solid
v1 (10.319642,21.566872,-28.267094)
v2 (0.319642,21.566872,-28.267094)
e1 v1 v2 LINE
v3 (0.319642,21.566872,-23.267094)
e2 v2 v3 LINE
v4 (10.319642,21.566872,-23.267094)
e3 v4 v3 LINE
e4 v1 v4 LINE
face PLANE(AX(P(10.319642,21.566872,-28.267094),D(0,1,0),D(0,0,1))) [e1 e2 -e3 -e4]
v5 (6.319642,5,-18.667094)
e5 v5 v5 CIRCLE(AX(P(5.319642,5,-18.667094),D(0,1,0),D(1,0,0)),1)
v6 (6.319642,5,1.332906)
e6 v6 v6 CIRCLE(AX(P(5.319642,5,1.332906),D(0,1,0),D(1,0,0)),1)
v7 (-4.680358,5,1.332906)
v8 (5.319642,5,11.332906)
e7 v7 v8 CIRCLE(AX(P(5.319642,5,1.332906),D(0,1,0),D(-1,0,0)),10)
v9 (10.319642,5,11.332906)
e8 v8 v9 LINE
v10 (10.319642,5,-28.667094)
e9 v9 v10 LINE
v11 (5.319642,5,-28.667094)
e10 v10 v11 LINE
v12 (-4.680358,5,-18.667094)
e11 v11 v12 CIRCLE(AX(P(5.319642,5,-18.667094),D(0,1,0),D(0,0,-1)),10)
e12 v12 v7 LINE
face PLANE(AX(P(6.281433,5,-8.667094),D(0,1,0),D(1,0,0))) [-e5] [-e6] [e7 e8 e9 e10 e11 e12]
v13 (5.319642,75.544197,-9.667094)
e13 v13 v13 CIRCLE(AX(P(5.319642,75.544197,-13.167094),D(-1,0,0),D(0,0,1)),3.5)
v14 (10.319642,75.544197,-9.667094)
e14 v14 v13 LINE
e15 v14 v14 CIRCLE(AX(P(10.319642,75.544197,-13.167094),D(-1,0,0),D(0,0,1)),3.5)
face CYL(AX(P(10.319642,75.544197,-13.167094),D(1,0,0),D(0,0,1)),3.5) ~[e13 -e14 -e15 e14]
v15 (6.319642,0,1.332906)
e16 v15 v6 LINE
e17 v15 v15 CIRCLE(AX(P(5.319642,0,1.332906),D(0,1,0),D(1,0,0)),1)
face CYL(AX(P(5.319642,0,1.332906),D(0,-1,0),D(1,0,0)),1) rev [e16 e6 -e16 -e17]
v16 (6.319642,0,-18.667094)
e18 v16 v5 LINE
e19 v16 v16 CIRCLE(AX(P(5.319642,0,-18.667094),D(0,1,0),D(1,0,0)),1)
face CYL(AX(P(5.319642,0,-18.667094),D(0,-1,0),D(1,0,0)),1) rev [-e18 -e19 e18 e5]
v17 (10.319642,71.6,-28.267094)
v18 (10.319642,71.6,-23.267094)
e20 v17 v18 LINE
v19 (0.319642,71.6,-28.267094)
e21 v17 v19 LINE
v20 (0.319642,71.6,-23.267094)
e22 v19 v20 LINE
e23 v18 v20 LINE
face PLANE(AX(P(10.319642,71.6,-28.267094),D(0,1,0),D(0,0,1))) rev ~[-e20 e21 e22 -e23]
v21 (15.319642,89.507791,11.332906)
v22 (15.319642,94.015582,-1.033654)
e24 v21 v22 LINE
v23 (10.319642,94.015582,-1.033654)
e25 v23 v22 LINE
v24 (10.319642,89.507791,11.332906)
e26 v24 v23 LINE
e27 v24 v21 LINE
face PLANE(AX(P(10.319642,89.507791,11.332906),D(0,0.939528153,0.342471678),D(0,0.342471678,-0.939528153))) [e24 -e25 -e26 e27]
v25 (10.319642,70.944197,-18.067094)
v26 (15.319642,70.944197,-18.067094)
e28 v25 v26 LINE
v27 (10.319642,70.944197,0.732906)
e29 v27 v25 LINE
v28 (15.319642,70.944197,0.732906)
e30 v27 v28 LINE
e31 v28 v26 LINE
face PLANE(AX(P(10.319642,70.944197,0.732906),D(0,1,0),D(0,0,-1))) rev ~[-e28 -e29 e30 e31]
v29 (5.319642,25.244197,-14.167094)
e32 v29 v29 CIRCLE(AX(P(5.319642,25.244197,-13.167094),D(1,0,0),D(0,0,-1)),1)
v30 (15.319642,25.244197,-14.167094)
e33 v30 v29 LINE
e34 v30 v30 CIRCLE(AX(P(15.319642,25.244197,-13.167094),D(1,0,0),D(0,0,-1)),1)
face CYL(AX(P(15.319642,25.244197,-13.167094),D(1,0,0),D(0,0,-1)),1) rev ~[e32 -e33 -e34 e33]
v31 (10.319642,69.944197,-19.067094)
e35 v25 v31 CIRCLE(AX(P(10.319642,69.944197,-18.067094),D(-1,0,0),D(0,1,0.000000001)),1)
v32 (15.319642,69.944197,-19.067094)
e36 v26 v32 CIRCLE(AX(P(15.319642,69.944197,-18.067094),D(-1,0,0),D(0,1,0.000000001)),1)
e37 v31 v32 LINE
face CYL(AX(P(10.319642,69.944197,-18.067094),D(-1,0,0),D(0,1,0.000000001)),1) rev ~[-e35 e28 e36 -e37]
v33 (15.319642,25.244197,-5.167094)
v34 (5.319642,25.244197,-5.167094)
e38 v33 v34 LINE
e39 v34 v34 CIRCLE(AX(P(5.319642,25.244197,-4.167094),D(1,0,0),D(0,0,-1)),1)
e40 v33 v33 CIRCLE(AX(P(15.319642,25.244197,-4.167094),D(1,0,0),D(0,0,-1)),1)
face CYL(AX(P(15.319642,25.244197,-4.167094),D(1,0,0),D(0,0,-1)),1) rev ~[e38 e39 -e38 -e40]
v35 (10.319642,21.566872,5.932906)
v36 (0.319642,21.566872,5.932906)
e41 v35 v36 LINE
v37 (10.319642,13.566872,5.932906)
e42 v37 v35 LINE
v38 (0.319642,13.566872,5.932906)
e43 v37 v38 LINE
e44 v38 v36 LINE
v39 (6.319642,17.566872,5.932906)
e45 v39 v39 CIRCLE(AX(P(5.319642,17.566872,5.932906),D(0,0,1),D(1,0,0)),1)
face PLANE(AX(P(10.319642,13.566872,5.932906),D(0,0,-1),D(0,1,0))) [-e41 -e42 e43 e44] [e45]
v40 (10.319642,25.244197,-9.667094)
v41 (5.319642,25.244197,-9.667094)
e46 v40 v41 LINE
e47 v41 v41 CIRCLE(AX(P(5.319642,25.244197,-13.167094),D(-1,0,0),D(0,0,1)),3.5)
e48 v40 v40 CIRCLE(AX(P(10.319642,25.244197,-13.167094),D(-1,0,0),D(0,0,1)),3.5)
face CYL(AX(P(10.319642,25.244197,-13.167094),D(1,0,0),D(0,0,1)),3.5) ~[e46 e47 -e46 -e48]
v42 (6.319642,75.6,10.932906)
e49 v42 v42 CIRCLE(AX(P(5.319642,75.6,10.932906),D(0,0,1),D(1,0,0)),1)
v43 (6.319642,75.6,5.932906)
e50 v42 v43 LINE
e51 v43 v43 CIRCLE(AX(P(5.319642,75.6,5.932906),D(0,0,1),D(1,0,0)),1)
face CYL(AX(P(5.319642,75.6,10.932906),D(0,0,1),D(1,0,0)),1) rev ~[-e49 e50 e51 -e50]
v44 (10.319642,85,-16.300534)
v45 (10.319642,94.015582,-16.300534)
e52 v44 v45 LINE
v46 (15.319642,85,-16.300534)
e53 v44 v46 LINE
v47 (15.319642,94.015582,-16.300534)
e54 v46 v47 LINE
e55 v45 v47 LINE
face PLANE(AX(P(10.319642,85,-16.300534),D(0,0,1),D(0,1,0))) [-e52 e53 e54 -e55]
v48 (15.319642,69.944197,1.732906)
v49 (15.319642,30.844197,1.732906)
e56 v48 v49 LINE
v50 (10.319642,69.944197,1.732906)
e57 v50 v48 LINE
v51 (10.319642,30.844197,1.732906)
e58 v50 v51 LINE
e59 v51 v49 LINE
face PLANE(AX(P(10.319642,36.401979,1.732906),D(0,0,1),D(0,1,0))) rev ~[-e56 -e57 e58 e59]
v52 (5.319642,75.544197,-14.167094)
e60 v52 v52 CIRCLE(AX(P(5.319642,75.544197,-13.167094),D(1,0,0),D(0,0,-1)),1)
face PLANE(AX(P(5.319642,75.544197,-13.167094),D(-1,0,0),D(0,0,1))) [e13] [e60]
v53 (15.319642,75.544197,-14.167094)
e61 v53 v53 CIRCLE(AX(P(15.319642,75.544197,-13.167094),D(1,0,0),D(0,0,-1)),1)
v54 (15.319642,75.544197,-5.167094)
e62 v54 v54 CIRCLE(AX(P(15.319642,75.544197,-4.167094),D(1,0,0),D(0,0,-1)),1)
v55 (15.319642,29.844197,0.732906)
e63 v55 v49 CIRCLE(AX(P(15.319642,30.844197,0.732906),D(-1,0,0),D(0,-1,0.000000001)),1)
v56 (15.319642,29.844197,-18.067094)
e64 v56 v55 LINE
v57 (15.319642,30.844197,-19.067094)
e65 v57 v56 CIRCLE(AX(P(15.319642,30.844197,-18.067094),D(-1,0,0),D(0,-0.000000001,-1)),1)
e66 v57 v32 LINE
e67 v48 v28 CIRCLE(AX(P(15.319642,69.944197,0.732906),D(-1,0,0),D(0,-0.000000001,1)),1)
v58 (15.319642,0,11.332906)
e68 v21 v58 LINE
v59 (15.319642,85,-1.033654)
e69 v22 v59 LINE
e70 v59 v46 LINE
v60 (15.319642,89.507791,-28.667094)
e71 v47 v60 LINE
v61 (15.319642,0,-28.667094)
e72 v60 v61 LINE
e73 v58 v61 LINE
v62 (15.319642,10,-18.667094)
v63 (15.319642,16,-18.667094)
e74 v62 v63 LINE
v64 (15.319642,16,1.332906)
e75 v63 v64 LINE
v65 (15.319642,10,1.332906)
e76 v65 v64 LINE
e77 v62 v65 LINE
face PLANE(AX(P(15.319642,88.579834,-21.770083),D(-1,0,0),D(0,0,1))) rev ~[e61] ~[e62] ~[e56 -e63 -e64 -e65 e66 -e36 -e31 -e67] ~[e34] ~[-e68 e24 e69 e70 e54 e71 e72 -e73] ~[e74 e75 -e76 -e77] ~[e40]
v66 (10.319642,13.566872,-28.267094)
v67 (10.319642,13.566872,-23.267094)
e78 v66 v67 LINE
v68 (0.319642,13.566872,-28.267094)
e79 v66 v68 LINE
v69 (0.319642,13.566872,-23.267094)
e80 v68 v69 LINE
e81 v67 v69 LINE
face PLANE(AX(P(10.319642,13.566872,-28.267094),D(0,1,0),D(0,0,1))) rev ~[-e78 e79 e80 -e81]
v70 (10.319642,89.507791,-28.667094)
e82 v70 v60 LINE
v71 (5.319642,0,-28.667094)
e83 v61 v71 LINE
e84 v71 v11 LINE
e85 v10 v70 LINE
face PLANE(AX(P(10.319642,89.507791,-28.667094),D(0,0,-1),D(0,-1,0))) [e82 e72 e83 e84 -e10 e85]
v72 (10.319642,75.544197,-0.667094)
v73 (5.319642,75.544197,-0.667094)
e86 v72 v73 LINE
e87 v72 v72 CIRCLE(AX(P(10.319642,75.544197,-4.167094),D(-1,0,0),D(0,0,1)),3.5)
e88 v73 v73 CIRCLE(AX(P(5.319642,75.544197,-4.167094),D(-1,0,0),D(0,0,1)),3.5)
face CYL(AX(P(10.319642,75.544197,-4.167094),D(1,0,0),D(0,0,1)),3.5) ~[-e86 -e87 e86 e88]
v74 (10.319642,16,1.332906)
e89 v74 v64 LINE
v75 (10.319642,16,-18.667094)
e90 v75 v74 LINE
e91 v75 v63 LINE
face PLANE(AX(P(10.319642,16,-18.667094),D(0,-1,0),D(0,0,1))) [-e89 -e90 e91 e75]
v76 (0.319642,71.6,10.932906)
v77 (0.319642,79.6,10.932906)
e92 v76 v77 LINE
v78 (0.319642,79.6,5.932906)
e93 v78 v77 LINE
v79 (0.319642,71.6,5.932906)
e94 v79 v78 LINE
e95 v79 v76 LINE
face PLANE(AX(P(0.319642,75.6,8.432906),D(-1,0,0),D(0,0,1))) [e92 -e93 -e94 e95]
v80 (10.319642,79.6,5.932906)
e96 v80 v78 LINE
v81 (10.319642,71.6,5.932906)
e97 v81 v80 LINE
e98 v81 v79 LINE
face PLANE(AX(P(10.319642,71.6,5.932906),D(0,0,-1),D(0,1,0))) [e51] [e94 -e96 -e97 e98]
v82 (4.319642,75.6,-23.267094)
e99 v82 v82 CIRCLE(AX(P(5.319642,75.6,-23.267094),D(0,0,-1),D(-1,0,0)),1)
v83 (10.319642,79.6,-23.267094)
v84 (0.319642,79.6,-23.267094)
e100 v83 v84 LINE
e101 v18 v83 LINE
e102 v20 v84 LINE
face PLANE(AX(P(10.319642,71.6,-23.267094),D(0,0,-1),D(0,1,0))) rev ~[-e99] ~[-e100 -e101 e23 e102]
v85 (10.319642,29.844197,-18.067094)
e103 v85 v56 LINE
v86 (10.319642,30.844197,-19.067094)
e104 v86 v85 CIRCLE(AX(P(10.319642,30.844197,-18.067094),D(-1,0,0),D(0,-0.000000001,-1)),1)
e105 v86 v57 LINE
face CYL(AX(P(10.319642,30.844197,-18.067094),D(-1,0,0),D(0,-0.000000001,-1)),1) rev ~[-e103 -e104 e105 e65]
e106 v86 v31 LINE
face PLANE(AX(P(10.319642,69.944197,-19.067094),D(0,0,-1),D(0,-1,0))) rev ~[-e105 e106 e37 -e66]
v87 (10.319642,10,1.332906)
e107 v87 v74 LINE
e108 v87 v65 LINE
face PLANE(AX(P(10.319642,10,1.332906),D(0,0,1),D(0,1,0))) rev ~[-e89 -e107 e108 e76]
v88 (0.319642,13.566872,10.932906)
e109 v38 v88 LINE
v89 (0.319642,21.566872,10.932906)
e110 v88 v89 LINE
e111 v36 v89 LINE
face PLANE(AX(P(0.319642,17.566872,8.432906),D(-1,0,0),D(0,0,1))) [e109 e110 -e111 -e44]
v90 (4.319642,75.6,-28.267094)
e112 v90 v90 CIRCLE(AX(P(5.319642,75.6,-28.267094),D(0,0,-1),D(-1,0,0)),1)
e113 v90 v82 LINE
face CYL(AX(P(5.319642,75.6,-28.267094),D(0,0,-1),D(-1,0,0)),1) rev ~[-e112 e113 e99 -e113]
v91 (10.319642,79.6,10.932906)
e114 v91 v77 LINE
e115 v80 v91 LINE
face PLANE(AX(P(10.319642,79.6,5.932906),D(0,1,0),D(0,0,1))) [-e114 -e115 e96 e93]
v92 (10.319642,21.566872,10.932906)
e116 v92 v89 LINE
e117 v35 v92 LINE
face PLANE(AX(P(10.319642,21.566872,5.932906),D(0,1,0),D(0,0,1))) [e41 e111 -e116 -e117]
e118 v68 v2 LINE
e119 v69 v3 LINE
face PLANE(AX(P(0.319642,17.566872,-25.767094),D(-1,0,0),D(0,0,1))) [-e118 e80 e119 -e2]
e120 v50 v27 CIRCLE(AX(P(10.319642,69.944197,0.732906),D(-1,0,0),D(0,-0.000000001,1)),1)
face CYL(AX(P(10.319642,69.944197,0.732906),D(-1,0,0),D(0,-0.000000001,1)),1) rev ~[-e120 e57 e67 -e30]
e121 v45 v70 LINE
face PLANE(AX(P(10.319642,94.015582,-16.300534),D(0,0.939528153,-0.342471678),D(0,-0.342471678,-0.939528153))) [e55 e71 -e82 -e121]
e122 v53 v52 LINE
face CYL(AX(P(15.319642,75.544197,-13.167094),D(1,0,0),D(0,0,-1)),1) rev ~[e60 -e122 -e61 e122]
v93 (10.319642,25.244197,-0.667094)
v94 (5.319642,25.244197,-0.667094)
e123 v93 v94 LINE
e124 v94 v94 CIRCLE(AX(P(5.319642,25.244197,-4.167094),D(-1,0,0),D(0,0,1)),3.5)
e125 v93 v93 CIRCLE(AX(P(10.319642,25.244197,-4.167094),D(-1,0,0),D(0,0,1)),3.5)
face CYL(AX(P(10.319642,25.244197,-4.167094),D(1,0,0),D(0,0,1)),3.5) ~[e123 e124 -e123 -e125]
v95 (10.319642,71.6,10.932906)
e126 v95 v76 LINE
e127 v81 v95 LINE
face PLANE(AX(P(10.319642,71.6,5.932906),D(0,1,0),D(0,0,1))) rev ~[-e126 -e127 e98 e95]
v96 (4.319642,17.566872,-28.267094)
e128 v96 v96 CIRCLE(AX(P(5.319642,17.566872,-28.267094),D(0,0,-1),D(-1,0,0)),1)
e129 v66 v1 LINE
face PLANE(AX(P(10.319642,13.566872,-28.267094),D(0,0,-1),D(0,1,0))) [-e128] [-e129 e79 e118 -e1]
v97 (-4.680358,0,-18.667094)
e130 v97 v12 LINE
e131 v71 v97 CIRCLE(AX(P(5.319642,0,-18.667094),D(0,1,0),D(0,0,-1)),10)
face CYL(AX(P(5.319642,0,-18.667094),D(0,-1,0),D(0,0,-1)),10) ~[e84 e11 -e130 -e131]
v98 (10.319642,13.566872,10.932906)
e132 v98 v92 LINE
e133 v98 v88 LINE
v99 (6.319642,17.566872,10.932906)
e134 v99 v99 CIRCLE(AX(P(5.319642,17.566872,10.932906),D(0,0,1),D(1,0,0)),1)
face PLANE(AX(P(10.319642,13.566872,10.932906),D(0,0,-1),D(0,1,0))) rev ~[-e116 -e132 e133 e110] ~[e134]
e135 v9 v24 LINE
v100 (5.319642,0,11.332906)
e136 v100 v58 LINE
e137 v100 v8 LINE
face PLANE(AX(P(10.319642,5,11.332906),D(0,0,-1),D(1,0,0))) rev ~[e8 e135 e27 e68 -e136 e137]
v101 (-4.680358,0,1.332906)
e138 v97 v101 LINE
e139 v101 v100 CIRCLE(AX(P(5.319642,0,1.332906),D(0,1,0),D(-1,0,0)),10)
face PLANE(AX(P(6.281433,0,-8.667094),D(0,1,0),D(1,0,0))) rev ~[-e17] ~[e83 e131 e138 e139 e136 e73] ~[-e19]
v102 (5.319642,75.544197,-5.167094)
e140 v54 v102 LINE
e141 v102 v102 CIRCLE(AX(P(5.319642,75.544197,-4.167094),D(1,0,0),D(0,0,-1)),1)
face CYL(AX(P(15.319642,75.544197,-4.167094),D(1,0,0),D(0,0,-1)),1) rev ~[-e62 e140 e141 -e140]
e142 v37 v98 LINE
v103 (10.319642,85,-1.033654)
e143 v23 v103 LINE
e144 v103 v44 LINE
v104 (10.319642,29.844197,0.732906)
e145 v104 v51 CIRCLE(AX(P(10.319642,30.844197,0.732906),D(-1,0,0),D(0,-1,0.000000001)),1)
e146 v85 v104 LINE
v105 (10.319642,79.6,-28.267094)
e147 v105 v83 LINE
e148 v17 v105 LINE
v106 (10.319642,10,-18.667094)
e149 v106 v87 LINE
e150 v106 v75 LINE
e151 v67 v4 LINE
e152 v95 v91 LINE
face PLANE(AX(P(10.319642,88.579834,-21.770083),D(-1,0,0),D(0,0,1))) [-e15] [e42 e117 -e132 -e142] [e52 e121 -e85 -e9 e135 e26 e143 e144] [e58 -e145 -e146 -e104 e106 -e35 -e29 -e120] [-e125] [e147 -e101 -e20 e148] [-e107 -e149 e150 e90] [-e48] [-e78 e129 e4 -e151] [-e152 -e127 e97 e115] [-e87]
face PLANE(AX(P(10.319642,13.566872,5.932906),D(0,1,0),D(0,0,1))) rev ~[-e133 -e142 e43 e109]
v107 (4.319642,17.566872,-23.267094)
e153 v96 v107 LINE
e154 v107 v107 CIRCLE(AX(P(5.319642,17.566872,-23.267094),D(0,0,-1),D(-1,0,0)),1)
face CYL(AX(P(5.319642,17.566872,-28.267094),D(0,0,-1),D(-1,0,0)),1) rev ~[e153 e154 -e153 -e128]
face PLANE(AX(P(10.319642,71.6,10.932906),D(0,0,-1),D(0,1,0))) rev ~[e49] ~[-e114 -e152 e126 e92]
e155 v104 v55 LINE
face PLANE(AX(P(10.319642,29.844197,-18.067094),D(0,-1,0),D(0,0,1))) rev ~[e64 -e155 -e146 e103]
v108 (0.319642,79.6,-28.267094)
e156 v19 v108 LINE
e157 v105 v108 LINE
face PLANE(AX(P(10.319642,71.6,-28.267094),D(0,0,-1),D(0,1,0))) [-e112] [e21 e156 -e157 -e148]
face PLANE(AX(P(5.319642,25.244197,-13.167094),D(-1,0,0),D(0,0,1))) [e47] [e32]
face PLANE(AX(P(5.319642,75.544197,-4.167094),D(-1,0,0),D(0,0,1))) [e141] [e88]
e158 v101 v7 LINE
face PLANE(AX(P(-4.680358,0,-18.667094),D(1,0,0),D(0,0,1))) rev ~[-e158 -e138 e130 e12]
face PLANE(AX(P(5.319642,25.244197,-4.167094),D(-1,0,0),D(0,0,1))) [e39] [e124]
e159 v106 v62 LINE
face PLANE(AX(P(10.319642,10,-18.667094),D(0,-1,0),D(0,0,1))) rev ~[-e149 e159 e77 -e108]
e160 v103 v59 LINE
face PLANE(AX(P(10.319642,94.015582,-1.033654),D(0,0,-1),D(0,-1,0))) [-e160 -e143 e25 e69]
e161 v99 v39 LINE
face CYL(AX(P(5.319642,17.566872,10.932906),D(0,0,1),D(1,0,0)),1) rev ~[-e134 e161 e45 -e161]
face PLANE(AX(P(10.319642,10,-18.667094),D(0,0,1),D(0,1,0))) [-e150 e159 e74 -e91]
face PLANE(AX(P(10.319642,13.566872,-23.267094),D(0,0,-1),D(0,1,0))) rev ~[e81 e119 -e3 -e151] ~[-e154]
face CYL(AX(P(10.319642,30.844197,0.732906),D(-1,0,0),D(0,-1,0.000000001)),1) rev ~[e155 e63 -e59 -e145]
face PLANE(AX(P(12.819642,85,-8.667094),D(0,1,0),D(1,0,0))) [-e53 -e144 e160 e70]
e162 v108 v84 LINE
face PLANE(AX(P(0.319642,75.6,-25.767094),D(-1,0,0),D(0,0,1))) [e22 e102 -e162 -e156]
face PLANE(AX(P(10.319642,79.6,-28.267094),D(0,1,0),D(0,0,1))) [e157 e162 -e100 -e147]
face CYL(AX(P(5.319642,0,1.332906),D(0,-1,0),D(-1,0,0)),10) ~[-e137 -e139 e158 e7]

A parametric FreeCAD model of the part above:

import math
import FreeCAD as App
import Part
import Sketcher

doc = App.newDocument("Part")
params = doc.addObject("Spreadsheet::Sheet", "Params")
for row, (alias, value) in enumerate([
    ("sketch1_diameter", "2 mm"),
    ("sketch1_radius", "10 mm"),
    ("sketch1_width", "10 mm"),
    ("sketch1_height", "40 mm"),
    ("pad1_length", "5 mm"),
    ("sketch2_width", "5 mm"),
    ("sketch2_height", "40 mm"),
    ("pad2_length", "80 mm"),
    ("sketch3_radius", "1 mm"),
    ("sketch3_diameter", "4.44 mm"),
    ("sketch3_height", "18.8 mm"),
    ("pocket1_length", "80 mm"),
    ("sketch4_diameter", "2 mm"),
    ("sketch4_diameter2", "4.44 mm"),
    ("pad3_length", "10 mm"),
    ("sketch5_diameter", "7 mm"),
    ("sketch5_diameter2", "4.44 mm"),
    ("pad4_length", "5 mm"),
    ("sketch6_radius", "1 mm"),
    ("sketch6_height", "18.8 mm"),
    ("pocket2_length", "10 mm"),
    ("pad5_length", "5 mm"),
    ("sketch8_width", "6 mm"),
    ("sketch8_height", "20 mm"),
    ("pocket3_length", "10 mm"),
    ("sketch9_width", "8 mm"),
    ("sketch9_height", "5 mm"),
    ("pad6_length", "10 mm"),
    ("sketch10_diameter", "2 mm"),
    ("pocket4_length", "8 mm"),
    ("sketch11_diameter", "2 mm"),
    ("pocket5_length", "8 mm"),
], start=1):
    params.set(f"A{row}", alias)
    params.set(f"B{row}", "=" + value)
    params.setAlias(f"B{row}", alias)

body = doc.addObject("PartDesign::Body", "Body")

sketch1 = body.newObject("Sketcher::SketchObject", "Sketch")
sketch1.AttachmentSupport = (doc.getObject("XZ_Plane"), [""])
sketch1.MapMode = "FlatFace"
sketch1.addGeometry([
    Part.LineSegment(App.Vector(5.3, 11.3, 0), App.Vector(15.3, 11.3, 0)),
    Part.LineSegment(App.Vector(15.3, 11.3, 0), App.Vector(15.3, -28.7, 0)),
    Part.LineSegment(App.Vector(15.3, -28.7, 0), App.Vector(5.3, -28.7, 0)),
    Part.ArcOfCircle(Part.Circle(App.Vector(5.3, -18.7, 0), App.Vector(0, 0, 1), 10), math.radians(180), math.radians(270)),
    Part.LineSegment(App.Vector(-4.7, -18.7, 0), App.Vector(-4.7, 1.3, 0)),
    Part.ArcOfCircle(Part.Circle(App.Vector(5.3, 1.3, 0), App.Vector(0, 0, 1), 10), math.radians(90), math.radians(180)),
    Part.Circle(App.Vector(5.3, 1.3, 0), App.Vector(0, 0, 1), 1),
    Part.Circle(App.Vector(5.3, -18.7, 0), App.Vector(0, 0, 1), 1),
], False)
sketch1.addConstraint([
    Sketcher.Constraint("Coincident", 0, 2, 1, 1),
    Sketcher.Constraint("Coincident", 1, 2, 2, 1),
    Sketcher.Constraint("Tangent", 2, 2, 3, 2),
    Sketcher.Constraint("Tangent", 3, 1, 4, 1),
    Sketcher.Constraint("Tangent", 4, 2, 5, 2),
    Sketcher.Constraint("Tangent", 5, 1, 0, 1),
    Sketcher.Constraint("Horizontal", 0),
    Sketcher.Constraint("Vertical", 1),
    Sketcher.Constraint("Horizontal", 2),
    Sketcher.Constraint("Vertical", 4),
    Sketcher.Constraint("Coincident", 6, 3, 5, 3),
    Sketcher.Constraint("Coincident", 7, 3, 3, 3),
    Sketcher.Constraint("Equal", 3, 5),
    Sketcher.Constraint("Equal", 6, 7),
    Sketcher.Constraint("Diameter", 6, 2.0),
    Sketcher.Constraint("Radius", 3, 10.0),
    Sketcher.Constraint("DistanceX", 0, 1, 0, 2, 10.0),
    Sketcher.Constraint("DistanceY", 1, 2, 1, 1, 40.0),
    Sketcher.Constraint("DistanceX", -1, 1, 3, 3, 5.319642),
    Sketcher.Constraint("DistanceY", 3, 3, -1, 1, 18.667094),
])
sketch1.setExpression("Constraints[14]", "Params.sketch1_diameter")
sketch1.setExpression("Constraints[15]", "Params.sketch1_radius")
sketch1.setExpression("Constraints[16]", "Params.sketch1_width")
sketch1.setExpression("Constraints[17]", "Params.sketch1_height")
pad1 = body.newObject("PartDesign::Pad", "Pad")
pad1.Profile = sketch1
pad1.setExpression("Length", "Params.pad1_length")
pad1.Reversed = True

sketch2 = body.newObject("Sketcher::SketchObject", "Sketch001")
sketch2.AttachmentSupport = (doc.getObject("XZ_Plane"), [""])
sketch2.MapMode = "FlatFace"
sketch2.AttachmentOffset = App.Placement(App.Vector(0, 0, -5), App.Rotation())
sketch2.addGeometry([
    Part.LineSegment(App.Vector(10, -29, 0), App.Vector(10, 11, 0)),
    Part.LineSegment(App.Vector(10, 11, 0), App.Vector(15, 11, 0)),
    Part.LineSegment(App.Vector(15, 11, 0), App.Vector(15, -29, 0)),
    Part.LineSegment(App.Vector(15, -29, 0), App.Vector(10, -29, 0)),
], False)
sketch2.addConstraint([
    Sketcher.Constraint("Coincident", 0, 2, 1, 1),
    Sketcher.Constraint("Coincident", 1, 2, 2, 1),
    Sketcher.Constraint("Coincident", 2, 2, 3, 1),
    Sketcher.Constraint("Coincident", 3, 2, 0, 1),
    Sketcher.Constraint("Vertical", 0),
    Sketcher.Constraint("Horizontal", 1),
    Sketcher.Constraint("Vertical", 2),
    Sketcher.Constraint("Horizontal", 3),
    Sketcher.Constraint("DistanceX", 1, 1, 1, 2, 5.0),
    Sketcher.Constraint("DistanceY", 0, 1, 0, 2, 40.0),
    Sketcher.Constraint("DistanceX", -1, 1, 0, 2, 10.319642),
    Sketcher.Constraint("DistanceY", -1, 1, 0, 2, 11.332906),
])
sketch2.setExpression("Constraints[8]", "Params.sketch2_width")
sketch2.setExpression("Constraints[9]", "Params.sketch2_height")
pad2 = body.newObject("PartDesign::Pad", "Pad001")
pad2.Profile = sketch2
pad2.setExpression("Length", "Params.pad2_length")
pad2.Reversed = True

sketch3 = body.newObject("Sketcher::SketchObject", "Sketch002")
sketch3.AttachmentSupport = (doc.getObject("YZ_Plane"), [""])
sketch3.MapMode = "FlatFace"
sketch3.AttachmentOffset = App.Placement(App.Vector(0, 0, 10.319642), App.Rotation())
sketch3.addGeometry([
    Part.ArcOfCircle(Part.Circle(App.Vector(36.4, 0.7, 0), App.Vector(0, 0, 1), 1), math.radians(90), math.radians(180)),
    Part.LineSegment(App.Vector(36.4, 1.7, 0), App.Vector(69.9, 1.7, 0)),
    Part.ArcOfCircle(Part.Circle(App.Vector(69.9, 0.7, 0), App.Vector(0, 0, 1), 1), math.radians(0), math.radians(90)),
    Part.LineSegment(App.Vector(70.9, 0.7, 0), App.Vector(70.9, -18.1, 0)),
    Part.ArcOfCircle(Part.Circle(App.Vector(69.9, -18.1, 0), App.Vector(0, 0, 1), 1), math.radians(-90), math.radians(0)),
    Part.LineSegment(App.Vector(69.9, -19.1, 0), App.Vector(36.4, -19.1, 0)),
    Part.ArcOfCircle(Part.Circle(App.Vector(36.4, -18.1, 0), App.Vector(0, 0, 1), 1), math.radians(-180), math.radians(-90)),
    Part.LineSegment(App.Vector(35.4, -18.1, 0), App.Vector(35.4, 0.7, 0)),
    Part.Circle(App.Vector(75.5, -13.2, 0), App.Vector(0, 0, 1), 2.2),
    Part.Circle(App.Vector(25.2, -13.2, 0), App.Vector(0, 0, 1), 2.2),
    Part.Circle(App.Vector(25.2, -4.2, 0), App.Vector(0, 0, 1), 2.2),
    Part.Circle(App.Vector(75.5, -4.2, 0), App.Vector(0, 0, 1), 2.2),
], False)
sketch3.addConstraint([
    Sketcher.Constraint("Tangent", 0, 1, 1, 1),
    Sketcher.Constraint("Tangent", 1, 2, 2, 2),
    Sketcher.Constraint("Tangent", 2, 1, 3, 1),
    Sketcher.Constraint("Tangent", 3, 2, 4, 2),
    Sketcher.Constraint("Tangent", 4, 1, 5, 1),
    Sketcher.Constraint("Tangent", 5, 2, 6, 2),
    Sketcher.Constraint("Tangent", 6, 1, 7, 1),
    Sketcher.Constraint("Tangent", 7, 2, 0, 2),
    Sketcher.Constraint("Horizontal", 1),
    Sketcher.Constraint("Vertical", 3),
    Sketcher.Constraint("Horizontal", 5),
    Sketcher.Constraint("Vertical", 7),
    Sketcher.Constraint("Equal", 0, 2),
    Sketcher.Constraint("Equal", 2, 4),
    Sketcher.Constraint("Equal", 4, 6),
    Sketcher.Constraint("Equal", 8, 9),
    Sketcher.Constraint("Equal", 9, 10),
    Sketcher.Constraint("Equal", 10, 11),
    Sketcher.Constraint("Horizontal", 8, 3, 9, 3),
    Sketcher.Constraint("Horizontal", 10, 3, 11, 3),
    Sketcher.Constraint("Vertical", 9, 3, 10, 3),
    Sketcher.Constraint("Vertical", 8, 3, 11, 3),
    Sketcher.Constraint("Radius", 0, 1.0),
    Sketcher.Constraint("Diameter", 8, 4.44),
    Sketcher.Constraint("DistanceY", 3, 2, 3, 1, 18.8),
    Sketcher.Constraint("DistanceY", 9, 3, 10, 3, 9.0),
    Sketcher.Constraint("DistanceX", 4, 3, 8, 3, 5.6),
    Sketcher.Constraint("DistanceY", 4, 3, 8, 3, 4.9),
    Sketcher.Constraint("DistanceX", 9, 3, 4, 3, 44.7),
    Sketcher.Constraint("DistanceX", 1, 1, 1, 2, 33.542218),
    Sketcher.Constraint("DistanceX", -1, 1, 0, 3, 36.401979),
    Sketcher.Constraint("DistanceY", -1, 1, 0, 3, 0.732906),
])
sketch3.setExpression("Constraints[22]", "Params.sketch3_radius")
sketch3.setExpression("Constraints[23]", "Params.sketch3_diameter")
sketch3.setExpression("Constraints[24]", "Params.sketch3_height")
pocket1 = body.newObject("PartDesign::Pocket", "Pocket")
pocket1.Profile = sketch3
pocket1.setExpression("Length", "Params.pocket1_length")
pocket1.Reversed = True

sketch4 = body.newObject("Sketcher::SketchObject", "Sketch003")
sketch4.AttachmentSupport = (doc.getObject("YZ_Plane"), [""])
sketch4.MapMode = "FlatFace"
sketch4.AttachmentOffset = App.Placement(App.Vector(0, 0, 15.319642), App.Rotation())
sketch4.addGeometry([
    Part.Circle(App.Vector(25.2, -4.2, 0), App.Vector(0, 0, 1), 2.2),
    Part.Circle(App.Vector(25.2, -4.2, 0), App.Vector(0, 0, 1), 1),
    Part.Circle(App.Vector(25.2, -13.2, 0), App.Vector(0, 0, 1), 2.2),
    Part.Circle(App.Vector(25.2, -13.2, 0), App.Vector(0, 0, 1), 1),
    Part.Circle(App.Vector(75.5, -4.2, 0), App.Vector(0, 0, 1), 2.2),
    Part.Circle(App.Vector(75.5, -4.2, 0), App.Vector(0, 0, 1), 1),
    Part.Circle(App.Vector(75.5, -13.2, 0), App.Vector(0, 0, 1), 2.2),
    Part.Circle(App.Vector(75.5, -13.2, 0), App.Vector(0, 0, 1), 1),
], False)
sketch4.addConstraint([
    Sketcher.Constraint("Coincident", 1, 3, 0, 3),
    Sketcher.Constraint("Coincident", 3, 3, 2, 3),
    Sketcher.Constraint("Coincident", 5, 3, 4, 3),
    Sketcher.Constraint("Coincident", 7, 3, 6, 3),
    Sketcher.Constraint("Equal", 0, 2),
    Sketcher.Constraint("Equal", 1, 3),
    Sketcher.Constraint("Equal", 2, 4),
    Sketcher.Constraint("Equal", 3, 5),
    Sketcher.Constraint("Equal", 4, 6),
    Sketcher.Constraint("Equal", 5, 7),
    Sketcher.Constraint("Horizontal", 1, 3, 4, 3),
    Sketcher.Constraint("Horizontal", 3, 3, 6, 3),
    Sketcher.Constraint("Vertical", 1, 3, 2, 3),
    Sketcher.Constraint("Vertical", 5, 3, 6, 3),
    Sketcher.Constraint("Diameter", 1, 2.0),
    Sketcher.Constraint("Diameter", 0, 4.44),
    Sketcher.Constraint("DistanceY", 2, 3, 0, 3, 9.0),
    Sketcher.Constraint("DistanceX", 0, 3, 4, 3, 50.3),
    Sketcher.Constraint("DistanceX", -1, 1, 0, 3, 25.244197),
    Sketcher.Constraint("DistanceY", 0, 3, -1, 1, 4.167094),
])
sketch4.setExpression("Constraints[14]", "Params.sketch4_diameter")
sketch4.setExpression("Constraints[15]", "Params.sketch4_diameter2")
pad3 = body.newObject("PartDesign::Pad", "Pad002")
pad3.Profile = sketch4
pad3.setExpression("Length", "Params.pad3_length")
pad3.Reversed = True

sketch5 = body.newObject("Sketcher::SketchObject", "Sketch004")
sketch5.AttachmentSupport = (doc.getObject("YZ_Plane"), [""])
sketch5.MapMode = "FlatFace"
sketch5.AttachmentOffset = App.Placement(App.Vector(0, 0, 10.319642), App.Rotation())
sketch5.addGeometry([
    Part.Circle(App.Vector(25.2, -4.2, 0), App.Vector(0, 0, 1), 3.5),
    Part.Circle(App.Vector(25.2, -4.2, 0), App.Vector(0, 0, 1), 2.2),
    Part.Circle(App.Vector(25.2, -13.2, 0), App.Vector(0, 0, 1), 3.5),
    Part.Circle(App.Vector(25.2, -13.2, 0), App.Vector(0, 0, 1), 2.2),
    Part.Circle(App.Vector(75.5, -4.2, 0), App.Vector(0, 0, 1), 3.5),
    Part.Circle(App.Vector(75.5, -4.2, 0), App.Vector(0, 0, 1), 2.2),
    Part.Circle(App.Vector(75.5, -13.2, 0), App.Vector(0, 0, 1), 3.5),
    Part.Circle(App.Vector(75.5, -13.2, 0), App.Vector(0, 0, 1), 2.2),
], False)
sketch5.addConstraint([
    Sketcher.Constraint("Coincident", 1, 3, 0, 3),
    Sketcher.Constraint("Coincident", 3, 3, 2, 3),
    Sketcher.Constraint("Coincident", 5, 3, 4, 3),
    Sketcher.Constraint("Coincident", 7, 3, 6, 3),
    Sketcher.Constraint("Equal", 0, 2),
    Sketcher.Constraint("Equal", 1, 3),
    Sketcher.Constraint("Equal", 2, 4),
    Sketcher.Constraint("Equal", 3, 5),
    Sketcher.Constraint("Equal", 4, 6),
    Sketcher.Constraint("Equal", 5, 7),
    Sketcher.Constraint("Horizontal", 1, 3, 4, 3),
    Sketcher.Constraint("Horizontal", 3, 3, 6, 3),
    Sketcher.Constraint("Vertical", 1, 3, 2, 3),
    Sketcher.Constraint("Vertical", 5, 3, 6, 3),
    Sketcher.Constraint("Diameter", 0, 7.0),
    Sketcher.Constraint("Diameter", 1, 4.44),
    Sketcher.Constraint("DistanceY", 2, 3, 0, 3, 9.0),
    Sketcher.Constraint("DistanceX", 0, 3, 4, 3, 50.3),
    Sketcher.Constraint("DistanceX", -1, 1, 0, 3, 25.244197),
    Sketcher.Constraint("DistanceY", 0, 3, -1, 1, 4.167094),
])
sketch5.setExpression("Constraints[14]", "Params.sketch5_diameter")
sketch5.setExpression("Constraints[15]", "Params.sketch5_diameter2")
pad4 = body.newObject("PartDesign::Pad", "Pad003")
pad4.Profile = sketch5
pad4.setExpression("Length", "Params.pad4_length")
pad4.Reversed = True

sketch6 = body.newObject("Sketcher::SketchObject", "Sketch005")
sketch6.AttachmentSupport = (doc.getObject("YZ_Plane"), [""])
sketch6.MapMode = "FlatFace"
sketch6.AttachmentOffset = App.Placement(App.Vector(0, 0, 10.319642), App.Rotation())
sketch6.addGeometry([
    Part.ArcOfCircle(Part.Circle(App.Vector(36.4, 0.7, 0), App.Vector(0, 0, 1), 1), math.radians(90), math.radians(143)),
    Part.ArcOfCircle(Part.Circle(App.Vector(36.4, 0.7, 0), App.Vector(0, 0, 1), 1), math.radians(143), math.radians(180)),
    Part.LineSegment(App.Vector(35.4, 0.7, 0), App.Vector(35.4, -18.1, 0)),
    Part.ArcOfCircle(Part.Circle(App.Vector(36.4, -18.1, 0), App.Vector(0, 0, 1), 1), math.radians(180), math.radians(217)),
    Part.ArcOfCircle(Part.Circle(App.Vector(36.4, -18.1, 0), App.Vector(0, 0, 1), 1), math.radians(-143), math.radians(-90)),
    Part.LineSegment(App.Vector(36.4, -19.1, 0), App.Vector(30.8, -19.1, 0)),
    Part.ArcOfCircle(Part.Circle(App.Vector(30.8, -18.1, 0), App.Vector(0, 0, 1), 1), math.radians(-180), math.radians(-90)),
    Part.LineSegment(App.Vector(29.8, -18.1, 0), App.Vector(29.8, 0.7, 0)),
    Part.ArcOfCircle(Part.Circle(App.Vector(30.8, 0.7, 0), App.Vector(0, 0, 1), 1), math.radians(90), math.radians(180)),
    Part.LineSegment(App.Vector(30.8, 1.7, 0), App.Vector(36.4, 1.7, 0)),
], False)
sketch6.addConstraint([
    Sketcher.Constraint("Tangent", 0, 2, 1, 1),
    Sketcher.Constraint("Tangent", 1, 2, 2, 1),
    Sketcher.Constraint("Tangent", 2, 2, 3, 1),
    Sketcher.Constraint("Tangent", 3, 2, 4, 1),
    Sketcher.Constraint("Tangent", 4, 2, 5, 1),
    Sketcher.Constraint("Tangent", 5, 2, 6, 2),
    Sketcher.Constraint("Tangent", 6, 1, 7, 1),
    Sketcher.Constraint("Tangent", 7, 2, 8, 2),
    Sketcher.Constraint("Tangent", 8, 1, 9, 1),
    Sketcher.Constraint("Tangent", 9, 2, 0, 1),
    Sketcher.Constraint("Vertical", 2),
    Sketcher.Constraint("Horizontal", 5),
    Sketcher.Constraint("Vertical", 7),
    Sketcher.Constraint("Horizontal", 9),
    Sketcher.Constraint("Equal", 0, 1),
    Sketcher.Constraint("Equal", 1, 3),
    Sketcher.Constraint("Equal", 3, 4),
    Sketcher.Constraint("Equal", 4, 6),
    Sketcher.Constraint("Equal", 6, 8),
    Sketcher.Constraint("Vertical", 0, 2, 3, 2),
    Sketcher.Constraint("Radius", 0, 1.0),
    Sketcher.Constraint("DistanceY", 2, 2, 2, 1, 18.8),
    Sketcher.Constraint("DistanceX", 0, 2, 1, 3, 0.8),
    Sketcher.Constraint("DistanceX", 5, 2, 5, 1, 5.557782),
    Sketcher.Constraint("DistanceX", -1, 1, 0, 3, 36.401979),
    Sketcher.Constraint("DistanceY", -1, 1, 0, 3, 0.732906),
])
sketch6.setExpression("Constraints[20]", "Params.sketch6_radius")
sketch6.setExpression("Constraints[21]", "Params.sketch6_height")
pocket2 = body.newObject("PartDesign::Pocket", "Pocket001")
pocket2.Profile = sketch6
pocket2.setExpression("Length", "Params.pocket2_length")
pocket2.Reversed = True

sketch7 = body.newObject("Sketcher::SketchObject", "Sketch006")
sketch7.AttachmentSupport = (doc.getObject("YZ_Plane"), [""])
sketch7.MapMode = "FlatFace"
sketch7.AttachmentOffset = App.Placement(App.Vector(0, 0, 10.319642), App.Rotation())
sketch7.addGeometry([
    Part.LineSegment(App.Vector(89.5, -28.7, 0), App.Vector(85, -28.7, 0)),
    Part.LineSegment(App.Vector(85, -28.7, 0), App.Vector(85, -16.3, 0)),
    Part.LineSegment(App.Vector(85, -16.3, 0), App.Vector(94, -16.3, 0)),
    Part.LineSegment(App.Vector(94, -16.3, 0), App.Vector(89.5, -28.7, 0)),
    Part.LineSegment(App.Vector(94, -1, 0), App.Vector(85, -1, 0)),
    Part.LineSegment(App.Vector(85, -1, 0), App.Vector(85, 11.3, 0)),
    Part.LineSegment(App.Vector(85, 11.3, 0), App.Vector(89.5, 11.3, 0)),
    Part.LineSegment(App.Vector(89.5, 11.3, 0), App.Vector(94, -1, 0)),
], False)
sketch7.addConstraint([
    Sketcher.Constraint("Coincident", 0, 2, 1, 1),
    Sketcher.Constraint("Coincident", 1, 2, 2, 1),
    Sketcher.Constraint("Coincident", 2, 2, 3, 1),
    Sketcher.Constraint("Coincident", 3, 2, 0, 1),
    Sketcher.Constraint("Coincident", 4, 2, 5, 1),
    Sketcher.Constraint("Coincident", 5, 2, 6, 1),
    Sketcher.Constraint("Coincident", 6, 2, 7, 1),
    Sketcher.Constraint("Coincident", 7, 2, 4, 1),
    Sketcher.Constraint("Horizontal", 0),
    Sketcher.Constraint("Vertical", 1),
    Sketcher.Constraint("Horizontal", 2),
    Sketcher.Constraint("Horizontal", 4),
    Sketcher.Constraint("Vertical", 5),
    Sketcher.Constraint("Horizontal", 6),
    Sketcher.Constraint("Vertical", 1, 2, 4, 2),
    Sketcher.Constraint("Vertical", 3, 2, 6, 2),
    Sketcher.Constraint("Vertical", 2, 2, 7, 2),
    Sketcher.Constraint("Equal", 1, 5),
    Sketcher.Constraint("DistanceX", -1, 1, 0, 2, 85.0),
    Sketcher.Constraint("DistanceY", 0, 2, 5, 2, 40.0),
    Sketcher.Constraint("DistanceX", 0, 2, 0, 1, 4.507791),
    Sketcher.Constraint("DistanceY", 1, 1, 1, 2, 12.36656),
    Sketcher.Constraint("DistanceX", 2, 1, 2, 2, 9.015582),
    Sketcher.Constraint("DistanceY", 0, 2, -1, 1, 28.667094),
])
pad5 = body.newObject("PartDesign::Pad", "Pad004")
pad5.Profile = sketch7
pad5.setExpression("Length", "Params.pad5_length")

sketch8 = body.newObject("Sketcher::SketchObject", "Sketch007")
sketch8.AttachmentSupport = (doc.getObject("YZ_Plane"), [""])
sketch8.MapMode = "FlatFace"
sketch8.AttachmentOffset = App.Placement(App.Vector(0, 0, 10.319642), App.Rotation())
sketch8.addGeometry([
    Part.LineSegment(App.Vector(16, -19, 0), App.Vector(10, -19, 0)),
    Part.LineSegment(App.Vector(10, -19, 0), App.Vector(10, 1, 0)),
    Part.LineSegment(App.Vector(10, 1, 0), App.Vector(16, 1, 0)),
    Part.LineSegment(App.Vector(16, 1, 0), App.Vector(16, -19, 0)),
], False)
sketch8.addConstraint([
    Sketcher.Constraint("Coincident", 0, 2, 1, 1),
    Sketcher.Constraint("Coincident", 1, 2, 2, 1),
    Sketcher.Constraint("Coincident", 2, 2, 3, 1),
    Sketcher.Constraint("Coincident", 3, 2, 0, 1),
    Sketcher.Constraint("Horizontal", 0),
    Sketcher.Constraint("Vertical", 1),
    Sketcher.Constraint("Horizontal", 2),
    Sketcher.Constraint("Vertical", 3),
    Sketcher.Constraint("DistanceX", 0, 2, 0, 1, 6.0),
    Sketcher.Constraint("DistanceY", 1, 1, 1, 2, 20.0),
    Sketcher.Constraint("DistanceX", -1, 1, 0, 2, 10.0),
    Sketcher.Constraint("DistanceY", 0, 2, -1, 1, 18.667094),
])
sketch8.setExpression("Constraints[8]", "Params.sketch8_width")
sketch8.setExpression("Constraints[9]", "Params.sketch8_height")
pocket3 = body.newObject("PartDesign::Pocket", "Pocket002")
pocket3.Profile = sketch8
pocket3.setExpression("Length", "Params.pocket3_length")
pocket3.Reversed = True

sketch9 = body.newObject("Sketcher::SketchObject", "Sketch008")
sketch9.AttachmentSupport = (doc.getObject("YZ_Plane"), [""])
sketch9.MapMode = "FlatFace"
sketch9.AttachmentOffset = App.Placement(App.Vector(0, 0, 10.319642), App.Rotation())
sketch9.addGeometry([
    Part.LineSegment(App.Vector(22, -28, 0), App.Vector(14, -28, 0)),
    Part.LineSegment(App.Vector(14, -28, 0), App.Vector(14, -23, 0)),
    Part.LineSegment(App.Vector(14, -23, 0), App.Vector(22, -23, 0)),
    Part.LineSegment(App.Vector(22, -23, 0), App.Vector(22, -28, 0)),
    Part.LineSegment(App.Vector(22, 6, 0), App.Vector(14, 6, 0)),
    Part.LineSegment(App.Vector(14, 6, 0), App.Vector(14, 11, 0)),
    Part.LineSegment(App.Vector(14, 11, 0), App.Vector(22, 11, 0)),
    Part.LineSegment(App.Vector(22, 11, 0), App.Vector(22, 6, 0)),
    Part.LineSegment(App.Vector(80, 6, 0), App.Vector(72, 6, 0)),
    Part.LineSegment(App.Vector(72, 6, 0), App.Vector(72, 11, 0)),
    Part.LineSegment(App.Vector(72, 11, 0), App.Vector(80, 11, 0)),
    Part.LineSegment(App.Vector(80, 11, 0), App.Vector(80, 6, 0)),
    Part.LineSegment(App.Vector(80, -28, 0), App.Vector(72, -28, 0)),
    Part.LineSegment(App.Vector(72, -28, 0), App.Vector(72, -23, 0)),
    Part.LineSegment(App.Vector(72, -23, 0), App.Vector(80, -23, 0)),
    Part.LineSegment(App.Vector(80, -23, 0), App.Vector(80, -28, 0)),
], False)
sketch9.addConstraint([
    Sketcher.Constraint("Coincident", 0, 2, 1, 1),
    Sketcher.Constraint("Coincident", 1, 2, 2, 1),
    Sketcher.Constraint("Coincident", 2, 2, 3, 1),
    Sketcher.Constraint("Coincident", 3, 2, 0, 1),
    Sketcher.Constraint("Coincident", 4, 2, 5, 1),
    Sketcher.Constraint("Coincident", 5, 2, 6, 1),
    Sketcher.Constraint("Coincident", 6, 2, 7, 1),
    Sketcher.Constraint("Coincident", 7, 2, 4, 1),
    Sketcher.Constraint("Coincident", 8, 2, 9, 1),
    Sketcher.Constraint("Coincident", 9, 2, 10, 1),
    Sketcher.Constraint("Coincident", 10, 2, 11, 1),
    Sketcher.Constraint("Coincident", 11, 2, 8, 1),
    Sketcher.Constraint("Coincident", 12, 2, 13, 1),
    Sketcher.Constraint("Coincident", 13, 2, 14, 1),
    Sketcher.Constraint("Coincident", 14, 2, 15, 1),
    Sketcher.Constraint("Coincident", 15, 2, 12, 1),
    Sketcher.Constraint("Horizontal", 0),
    Sketcher.Constraint("Vertical", 1),
    Sketcher.Constraint("Horizontal", 2),
    Sketcher.Constraint("Vertical", 3),
    Sketcher.Constraint("Horizontal", 4),
    Sketcher.Constraint("Vertical", 5),
    Sketcher.Constraint("Horizontal", 6),
    Sketcher.Constraint("Vertical", 7),
    Sketcher.Constraint("Horizontal", 8),
    Sketcher.Constraint("Vertical", 9),
    Sketcher.Constraint("Horizontal", 10),
    Sketcher.Constraint("Vertical", 11),
    Sketcher.Constraint("Horizontal", 12),
    Sketcher.Constraint("Vertical", 13),
    Sketcher.Constraint("Horizontal", 14),
    Sketcher.Constraint("Vertical", 15),
    Sketcher.Constraint("Horizontal", 7, 2, 8, 2),
    Sketcher.Constraint("Horizontal", 6, 2, 9, 2),
    Sketcher.Constraint("Horizontal", 3, 2, 12, 2),
    Sketcher.Constraint("Horizontal", 2, 2, 13, 2),
    Sketcher.Constraint("Vertical", 1, 2, 4, 2),
    Sketcher.Constraint("Vertical", 3, 2, 6, 2),
    Sketcher.Constraint("Vertical", 9, 2, 12, 2),
    Sketcher.Constraint("Vertical", 11, 2, 14, 2),
    Sketcher.Constraint("Equal", 6, 8),
    Sketcher.Constraint("Equal", 3, 5),
    Sketcher.Constraint("DistanceX", 0, 2, 0, 1, 8.0),
    Sketcher.Constraint("DistanceY", 1, 1, 1, 2, 5.0),
    Sketcher.Constraint("DistanceX", -1, 1, 8, 2, 71.6),
    Sketcher.Constraint("DistanceY", 1, 2, 4, 2, 29.2),
    Sketcher.Constraint("DistanceX", -1, 1, 0, 2, 13.566872),
    Sketcher.Constraint("DistanceY", 0, 2, -1, 1, 28.267094),
])
sketch9.setExpression("Constraints[42]", "Params.sketch9_width")
sketch9.setExpression("Constraints[43]", "Params.sketch9_height")
pad6 = body.newObject("PartDesign::Pad", "Pad005")
pad6.Profile = sketch9
pad6.setExpression("Length", "Params.pad6_length")
pad6.Reversed = True

sketch10 = body.newObject("Sketcher::SketchObject", "Sketch009")
sketch10.AttachmentSupport = (doc.getObject("XY_Plane"), [""])
sketch10.MapMode = "FlatFace"
sketch10.AttachmentOffset = App.Placement(App.Vector(0, 0, 10.932906), App.Rotation())
sketch10.addGeometry([
    Part.Circle(App.Vector(5.3, 17.6, 0), App.Vector(0, 0, 1), 1),
    Part.Circle(App.Vector(5.3, 75.6, 0), App.Vector(0, 0, 1), 1),
], False)
sketch10.addConstraint([
    Sketcher.Constraint("Equal", 0, 1),
    Sketcher.Constraint("Vertical", 0, 3, 1, 3),
    Sketcher.Constraint("Diameter", 0, 2.0),
    Sketcher.Constraint("DistanceY", -1, 1, 1, 3, 75.6),
    Sketcher.Constraint("DistanceX", -1, 1, 0, 3, 5.319642),
    Sketcher.Constraint("DistanceY", -1, 1, 0, 3, 17.566872),
])
sketch10.setExpression("Constraints[2]", "Params.sketch10_diameter")
pocket4 = body.newObject("PartDesign::Pocket", "Pocket003")
pocket4.Profile = sketch10
pocket4.setExpression("Length", "Params.pocket4_length")

sketch11 = body.newObject("Sketcher::SketchObject", "Sketch010")
sketch11.AttachmentSupport = (doc.getObject("XY_Plane"), [""])
sketch11.MapMode = "FlatFace"
sketch11.AttachmentOffset = App.Placement(App.Vector(0, 0, -28.267094), App.Rotation())
sketch11.addGeometry([
    Part.Circle(App.Vector(5.3, 75.6, 0), App.Vector(0, 0, 1), 1),
    Part.Circle(App.Vector(5.3, 17.6, 0), App.Vector(0, 0, 1), 1),
], False)
sketch11.addConstraint([
    Sketcher.Constraint("Equal", 0, 1),
    Sketcher.Constraint("Vertical", 0, 3, 1, 3),
    Sketcher.Constraint("Diameter", 0, 2.0),
    Sketcher.Constraint("DistanceY", -1, 1, 0, 3, 75.6),
    Sketcher.Constraint("DistanceX", -1, 1, 0, 3, 5.319642),
    Sketcher.Constraint("DistanceY", -1, 1, 1, 3, 17.566872),
])
sketch11.setExpression("Constraints[2]", "Params.sketch11_diameter")
pocket5 = body.newObject("PartDesign::Pocket", "Pocket004")
pocket5.Profile = sketch11
pocket5.setExpression("Length", "Params.pocket5_length")
pocket5.Reversed = True

doc.recompute()
